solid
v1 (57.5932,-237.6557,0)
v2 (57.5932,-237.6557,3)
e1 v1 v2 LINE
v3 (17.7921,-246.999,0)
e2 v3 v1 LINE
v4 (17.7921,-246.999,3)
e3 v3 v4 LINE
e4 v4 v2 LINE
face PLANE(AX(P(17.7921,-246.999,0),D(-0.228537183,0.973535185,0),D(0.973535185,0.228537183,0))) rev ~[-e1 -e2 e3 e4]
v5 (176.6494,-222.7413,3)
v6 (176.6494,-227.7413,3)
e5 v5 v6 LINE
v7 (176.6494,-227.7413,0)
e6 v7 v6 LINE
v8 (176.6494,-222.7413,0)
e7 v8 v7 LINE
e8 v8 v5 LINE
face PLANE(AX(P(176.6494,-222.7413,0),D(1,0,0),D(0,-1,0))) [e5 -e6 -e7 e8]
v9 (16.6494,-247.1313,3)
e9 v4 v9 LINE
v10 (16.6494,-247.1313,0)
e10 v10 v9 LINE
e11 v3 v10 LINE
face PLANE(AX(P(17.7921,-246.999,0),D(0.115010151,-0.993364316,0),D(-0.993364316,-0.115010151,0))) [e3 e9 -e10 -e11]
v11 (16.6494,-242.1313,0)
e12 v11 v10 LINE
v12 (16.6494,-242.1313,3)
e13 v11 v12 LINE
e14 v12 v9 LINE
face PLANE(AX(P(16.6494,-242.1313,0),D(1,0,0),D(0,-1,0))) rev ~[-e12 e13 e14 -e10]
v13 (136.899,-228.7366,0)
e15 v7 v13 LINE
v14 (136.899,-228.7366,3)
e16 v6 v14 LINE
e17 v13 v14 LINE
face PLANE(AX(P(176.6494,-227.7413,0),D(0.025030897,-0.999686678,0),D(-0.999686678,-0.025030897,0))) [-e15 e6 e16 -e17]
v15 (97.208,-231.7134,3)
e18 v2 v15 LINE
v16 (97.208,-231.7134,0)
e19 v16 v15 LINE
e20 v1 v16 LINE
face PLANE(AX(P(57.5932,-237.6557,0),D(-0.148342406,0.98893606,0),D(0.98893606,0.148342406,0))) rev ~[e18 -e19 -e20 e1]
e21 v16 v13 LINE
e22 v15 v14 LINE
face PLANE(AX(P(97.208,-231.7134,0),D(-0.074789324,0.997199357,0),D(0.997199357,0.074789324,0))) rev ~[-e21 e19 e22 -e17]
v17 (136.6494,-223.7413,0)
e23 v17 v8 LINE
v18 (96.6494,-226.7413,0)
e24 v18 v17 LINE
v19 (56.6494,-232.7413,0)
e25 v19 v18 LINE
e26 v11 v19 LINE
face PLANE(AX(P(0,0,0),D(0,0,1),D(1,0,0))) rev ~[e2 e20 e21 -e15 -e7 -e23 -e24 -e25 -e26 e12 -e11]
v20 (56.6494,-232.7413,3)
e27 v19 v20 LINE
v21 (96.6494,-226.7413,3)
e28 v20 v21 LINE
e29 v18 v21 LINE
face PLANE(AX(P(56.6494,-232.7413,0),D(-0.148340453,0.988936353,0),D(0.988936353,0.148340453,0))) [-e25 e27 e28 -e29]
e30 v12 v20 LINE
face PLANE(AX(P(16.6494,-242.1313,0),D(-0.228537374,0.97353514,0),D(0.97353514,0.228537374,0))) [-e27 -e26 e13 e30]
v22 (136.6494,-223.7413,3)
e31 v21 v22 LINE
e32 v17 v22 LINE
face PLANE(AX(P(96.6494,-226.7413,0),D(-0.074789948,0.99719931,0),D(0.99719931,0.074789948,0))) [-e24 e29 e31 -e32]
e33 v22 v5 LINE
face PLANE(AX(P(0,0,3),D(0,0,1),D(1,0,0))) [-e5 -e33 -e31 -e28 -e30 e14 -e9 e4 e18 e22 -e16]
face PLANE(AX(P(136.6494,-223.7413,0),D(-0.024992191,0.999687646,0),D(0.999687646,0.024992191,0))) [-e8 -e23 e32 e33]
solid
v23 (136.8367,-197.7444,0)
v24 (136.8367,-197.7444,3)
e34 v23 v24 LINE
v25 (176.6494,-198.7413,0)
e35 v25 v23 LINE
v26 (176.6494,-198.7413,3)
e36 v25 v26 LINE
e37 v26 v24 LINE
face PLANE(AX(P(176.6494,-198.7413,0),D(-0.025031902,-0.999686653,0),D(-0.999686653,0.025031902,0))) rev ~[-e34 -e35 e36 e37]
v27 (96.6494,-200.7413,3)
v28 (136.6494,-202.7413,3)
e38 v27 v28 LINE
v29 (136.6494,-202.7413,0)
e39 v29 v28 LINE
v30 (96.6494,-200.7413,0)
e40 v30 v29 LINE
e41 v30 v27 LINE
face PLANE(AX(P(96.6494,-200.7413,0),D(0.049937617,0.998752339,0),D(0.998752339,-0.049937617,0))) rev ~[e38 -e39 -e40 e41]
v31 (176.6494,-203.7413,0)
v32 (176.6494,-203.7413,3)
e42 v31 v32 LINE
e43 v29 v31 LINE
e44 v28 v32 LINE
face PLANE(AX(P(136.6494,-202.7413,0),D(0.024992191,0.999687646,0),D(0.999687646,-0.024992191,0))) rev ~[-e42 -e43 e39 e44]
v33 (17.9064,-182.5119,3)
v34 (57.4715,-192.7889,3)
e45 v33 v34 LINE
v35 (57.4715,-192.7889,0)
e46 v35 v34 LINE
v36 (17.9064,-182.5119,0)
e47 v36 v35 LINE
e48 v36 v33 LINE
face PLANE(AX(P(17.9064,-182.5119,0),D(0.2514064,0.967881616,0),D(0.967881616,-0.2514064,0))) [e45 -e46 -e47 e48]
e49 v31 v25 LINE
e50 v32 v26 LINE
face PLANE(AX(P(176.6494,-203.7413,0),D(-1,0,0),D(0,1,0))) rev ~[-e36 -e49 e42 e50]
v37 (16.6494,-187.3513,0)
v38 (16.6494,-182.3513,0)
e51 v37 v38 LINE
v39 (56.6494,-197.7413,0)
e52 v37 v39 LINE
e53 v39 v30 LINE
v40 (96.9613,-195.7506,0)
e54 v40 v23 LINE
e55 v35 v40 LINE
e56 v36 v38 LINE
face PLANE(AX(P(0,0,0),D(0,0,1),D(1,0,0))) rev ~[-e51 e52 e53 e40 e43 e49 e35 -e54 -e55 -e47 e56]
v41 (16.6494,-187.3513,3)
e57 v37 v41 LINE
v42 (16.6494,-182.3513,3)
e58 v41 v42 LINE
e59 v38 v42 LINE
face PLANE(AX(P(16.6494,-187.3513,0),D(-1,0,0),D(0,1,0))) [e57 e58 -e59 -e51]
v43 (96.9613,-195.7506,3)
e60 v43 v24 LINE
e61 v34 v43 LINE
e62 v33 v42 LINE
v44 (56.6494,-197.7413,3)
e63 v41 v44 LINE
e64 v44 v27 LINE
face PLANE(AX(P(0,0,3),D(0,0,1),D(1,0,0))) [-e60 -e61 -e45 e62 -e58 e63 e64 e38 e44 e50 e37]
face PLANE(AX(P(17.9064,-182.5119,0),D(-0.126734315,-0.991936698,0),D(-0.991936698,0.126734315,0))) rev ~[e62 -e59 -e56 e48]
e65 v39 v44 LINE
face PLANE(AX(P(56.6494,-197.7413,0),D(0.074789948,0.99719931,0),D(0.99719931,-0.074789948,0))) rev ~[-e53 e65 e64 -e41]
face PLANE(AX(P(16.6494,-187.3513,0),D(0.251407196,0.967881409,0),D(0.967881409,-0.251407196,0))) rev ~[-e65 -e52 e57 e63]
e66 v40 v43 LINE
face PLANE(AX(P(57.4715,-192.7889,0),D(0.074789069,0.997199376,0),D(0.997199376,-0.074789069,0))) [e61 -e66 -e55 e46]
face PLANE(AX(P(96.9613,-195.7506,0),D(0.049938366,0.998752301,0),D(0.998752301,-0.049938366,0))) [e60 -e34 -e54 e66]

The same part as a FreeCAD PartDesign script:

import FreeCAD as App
import Part
import Sketcher
Q = App.Units.Quantity


def add_polygon(sketch, points):
    """Adds a closed chain of lines whose ends are joined by coincident constraints."""
    first, n = sketch.GeometryCount, len(points)
    for a, b in zip(points, points[1:] + points[:1]):
        sketch.addGeometry(Part.LineSegment(App.Vector(*a, 0), App.Vector(*b, 0)), False)
    for i in range(n):
        sketch.addConstraint(Sketcher.Constraint("Coincident", first + i, 2, first + (i + 1) % n, 1))

doc = App.newDocument("Part")
params = doc.addObject("Spreadsheet::Sheet", "Params")
for row, (alias, value) in enumerate([
    ("sketch1_height", "5 mm"),
    ("sketch1_height2", "5 mm"),
    ("sketch1_height3", "5 mm"),
    ("sketch1_height4", "5 mm"),
    ("pad1_length", "3 mm"),
], start=1):
    params.set(f"A{row}", alias)
    params.set(f"B{row}", "=" + value)
    params.setAlias(f"B{row}", alias)

body = doc.addObject("PartDesign::Body", "Body")
body.AllowCompound = True

sketch1 = body.newObject("Sketcher::SketchObject", "Sketch")
sketch1.AttachmentSupport = (doc.getObject("XY_Plane"), [""])
sketch1.MapMode = "FlatFace"
add_polygon(sketch1, [(16.6494, -182.3513), (16.6494, -187.3513), (56.6494, -197.7413), (96.6494, -200.7413), (136.6494, -202.7413), (176.6494, -203.7413), (176.6494, -198.7413), (136.8367, -197.7444), (96.9613, -195.7506), (57.4715, -192.7889), (17.9064, -182.5119)])
add_polygon(sketch1, [(56.6494, -232.7413), (16.6494, -242.1313), (16.6494, -247.1313), (17.7921, -246.999), (57.5932, -237.6557), (97.208, -231.7134), (136.899, -228.7366), (176.6494, -227.7413), (176.6494, -222.7413), (136.6494, -223.7413), (96.6494, -226.7413)])
sketch1.addConstraint([
    Sketcher.Constraint("Vertical", 0),
    Sketcher.Constraint("Vertical", 5),
    Sketcher.Constraint("Vertical", 12),
    Sketcher.Constraint("Vertical", 18),
    Sketcher.Constraint("DistanceY", 0, 2, 0, 1, Q("5 mm")),
    Sketcher.Constraint("DistanceY", 5, 1, 5, 2, Q("5 mm")),
    Sketcher.Constraint("DistanceY", 12, 2, 12, 1, Q("5 mm")),
    Sketcher.Constraint("DistanceY", 18, 1, 18, 2, Q("5 mm")),
    Sketcher.Constraint("DistanceY", 3, 2, 1, 2, Q("5 mm")),
    Sketcher.Constraint("DistanceY", 11, 2, 0, 2, Q("54.78 mm")),
    Sketcher.Constraint("DistanceX", 0, 2, 1, 2, Q("40 mm")),
    Sketcher.Constraint("DistanceX", 1, 2, 2, 2, Q("40 mm")),
    Sketcher.Constraint("DistanceY", 2, 2, 1, 2, Q("3 mm")),
    Sketcher.Constraint("DistanceX", 2, 2, 3, 2, Q("40 mm")),
    Sketcher.Constraint("DistanceX", 3, 2, 4, 2, Q("40 mm")),
    Sketcher.Constraint("DistanceY", 4, 2, 3, 2, Q("1 mm")),
    Sketcher.Constraint("DistanceX", 11, 2, 1, 2, Q("40 mm")),
    Sketcher.Constraint("DistanceY", 17, 2, 4, 2, Q("24 mm")),
    Sketcher.Constraint("DistanceX", 3, 2, 17, 2, Q("40 mm")),
    Sketcher.Constraint("DistanceY", 19, 2, 3, 2, Q("21 mm")),
    Sketcher.Constraint("DistanceX", 19, 2, 18, 2, Q("40 mm")),
    Sketcher.Constraint("DistanceY", 20, 2, 2, 2, Q("26 mm")),
    Sketcher.Constraint("DistanceX", 20, 2, 19, 2, Q("40 mm")),
    Sketcher.Constraint("DistanceY", 21, 2, 1, 2, Q("35 mm")),
    Sketcher.Constraint("DistanceX", 21, 2, 20, 2, Q("40 mm")),
    Sketcher.Constraint("DistanceY", 1, 2, 0, 2, Q("10.39 mm")),
    Sketcher.Constraint("Distance", 9, Q("40.878 mm")),
    Sketcher.Constraint("Distance", 14, Q("40.883 mm")),
    Sketcher.Constraint("Distance", 15, Q("40.058 mm")),
    Sketcher.Constraint("DistanceY", 8, 2, -1, 1, Q("192.789 mm")),
    Sketcher.Constraint("DistanceY", 9, 2, -1, 1, Q("182.512 mm")),
    Sketcher.Constraint("DistanceX", -1, 1, 13, 2, Q("17.792 mm")),
    Sketcher.Constraint("DistanceY", 13, 2, -1, 1, Q("246.999 mm")),
    Sketcher.Constraint("DistanceX", -1, 1, 15, 2, Q("97.208 mm")),
    Sketcher.Constraint("DistanceX", -1, 1, 16, 2, Q("136.899 mm")),
    Sketcher.Constraint("DistanceY", 3, 2, 6, 2, Q("4.997 mm")),
    Sketcher.Constraint("DistanceX", 2, 2, 7, 2, Q("0.312 mm")),
    Sketcher.Constraint("DistanceX", 1, 2, 8, 2, Q("0.822 mm")),
    Sketcher.Constraint("DistanceX", 13, 2, 14, 2, Q("39.801 mm")),
    Sketcher.Constraint("DistanceY", 15, 2, 2, 2, Q("30.972 mm")),
    Sketcher.Constraint("Distance", 6, Q("39.8252 mm")),
    Sketcher.Constraint("Distance", 7, Q("39.9252 mm")),
    Sketcher.Constraint("Distance", 13, Q("1.1503 mm")),
    Sketcher.Constraint("Distance", 16, Q("39.8025 mm")),
])
sketch1.setExpression("Constraints[26]", "Params.sketch1_height")
sketch1.setExpression("Constraints[27]", "Params.sketch1_height2")
sketch1.setExpression("Constraints[28]", "Params.sketch1_height3")
sketch1.setExpression("Constraints[29]", "Params.sketch1_height4")
pad1 = body.newObject("PartDesign::Pad", "Pad")
pad1.Profile = sketch1
pad1.setExpression("Length", "Params.pad1_length")

doc.recompute()
